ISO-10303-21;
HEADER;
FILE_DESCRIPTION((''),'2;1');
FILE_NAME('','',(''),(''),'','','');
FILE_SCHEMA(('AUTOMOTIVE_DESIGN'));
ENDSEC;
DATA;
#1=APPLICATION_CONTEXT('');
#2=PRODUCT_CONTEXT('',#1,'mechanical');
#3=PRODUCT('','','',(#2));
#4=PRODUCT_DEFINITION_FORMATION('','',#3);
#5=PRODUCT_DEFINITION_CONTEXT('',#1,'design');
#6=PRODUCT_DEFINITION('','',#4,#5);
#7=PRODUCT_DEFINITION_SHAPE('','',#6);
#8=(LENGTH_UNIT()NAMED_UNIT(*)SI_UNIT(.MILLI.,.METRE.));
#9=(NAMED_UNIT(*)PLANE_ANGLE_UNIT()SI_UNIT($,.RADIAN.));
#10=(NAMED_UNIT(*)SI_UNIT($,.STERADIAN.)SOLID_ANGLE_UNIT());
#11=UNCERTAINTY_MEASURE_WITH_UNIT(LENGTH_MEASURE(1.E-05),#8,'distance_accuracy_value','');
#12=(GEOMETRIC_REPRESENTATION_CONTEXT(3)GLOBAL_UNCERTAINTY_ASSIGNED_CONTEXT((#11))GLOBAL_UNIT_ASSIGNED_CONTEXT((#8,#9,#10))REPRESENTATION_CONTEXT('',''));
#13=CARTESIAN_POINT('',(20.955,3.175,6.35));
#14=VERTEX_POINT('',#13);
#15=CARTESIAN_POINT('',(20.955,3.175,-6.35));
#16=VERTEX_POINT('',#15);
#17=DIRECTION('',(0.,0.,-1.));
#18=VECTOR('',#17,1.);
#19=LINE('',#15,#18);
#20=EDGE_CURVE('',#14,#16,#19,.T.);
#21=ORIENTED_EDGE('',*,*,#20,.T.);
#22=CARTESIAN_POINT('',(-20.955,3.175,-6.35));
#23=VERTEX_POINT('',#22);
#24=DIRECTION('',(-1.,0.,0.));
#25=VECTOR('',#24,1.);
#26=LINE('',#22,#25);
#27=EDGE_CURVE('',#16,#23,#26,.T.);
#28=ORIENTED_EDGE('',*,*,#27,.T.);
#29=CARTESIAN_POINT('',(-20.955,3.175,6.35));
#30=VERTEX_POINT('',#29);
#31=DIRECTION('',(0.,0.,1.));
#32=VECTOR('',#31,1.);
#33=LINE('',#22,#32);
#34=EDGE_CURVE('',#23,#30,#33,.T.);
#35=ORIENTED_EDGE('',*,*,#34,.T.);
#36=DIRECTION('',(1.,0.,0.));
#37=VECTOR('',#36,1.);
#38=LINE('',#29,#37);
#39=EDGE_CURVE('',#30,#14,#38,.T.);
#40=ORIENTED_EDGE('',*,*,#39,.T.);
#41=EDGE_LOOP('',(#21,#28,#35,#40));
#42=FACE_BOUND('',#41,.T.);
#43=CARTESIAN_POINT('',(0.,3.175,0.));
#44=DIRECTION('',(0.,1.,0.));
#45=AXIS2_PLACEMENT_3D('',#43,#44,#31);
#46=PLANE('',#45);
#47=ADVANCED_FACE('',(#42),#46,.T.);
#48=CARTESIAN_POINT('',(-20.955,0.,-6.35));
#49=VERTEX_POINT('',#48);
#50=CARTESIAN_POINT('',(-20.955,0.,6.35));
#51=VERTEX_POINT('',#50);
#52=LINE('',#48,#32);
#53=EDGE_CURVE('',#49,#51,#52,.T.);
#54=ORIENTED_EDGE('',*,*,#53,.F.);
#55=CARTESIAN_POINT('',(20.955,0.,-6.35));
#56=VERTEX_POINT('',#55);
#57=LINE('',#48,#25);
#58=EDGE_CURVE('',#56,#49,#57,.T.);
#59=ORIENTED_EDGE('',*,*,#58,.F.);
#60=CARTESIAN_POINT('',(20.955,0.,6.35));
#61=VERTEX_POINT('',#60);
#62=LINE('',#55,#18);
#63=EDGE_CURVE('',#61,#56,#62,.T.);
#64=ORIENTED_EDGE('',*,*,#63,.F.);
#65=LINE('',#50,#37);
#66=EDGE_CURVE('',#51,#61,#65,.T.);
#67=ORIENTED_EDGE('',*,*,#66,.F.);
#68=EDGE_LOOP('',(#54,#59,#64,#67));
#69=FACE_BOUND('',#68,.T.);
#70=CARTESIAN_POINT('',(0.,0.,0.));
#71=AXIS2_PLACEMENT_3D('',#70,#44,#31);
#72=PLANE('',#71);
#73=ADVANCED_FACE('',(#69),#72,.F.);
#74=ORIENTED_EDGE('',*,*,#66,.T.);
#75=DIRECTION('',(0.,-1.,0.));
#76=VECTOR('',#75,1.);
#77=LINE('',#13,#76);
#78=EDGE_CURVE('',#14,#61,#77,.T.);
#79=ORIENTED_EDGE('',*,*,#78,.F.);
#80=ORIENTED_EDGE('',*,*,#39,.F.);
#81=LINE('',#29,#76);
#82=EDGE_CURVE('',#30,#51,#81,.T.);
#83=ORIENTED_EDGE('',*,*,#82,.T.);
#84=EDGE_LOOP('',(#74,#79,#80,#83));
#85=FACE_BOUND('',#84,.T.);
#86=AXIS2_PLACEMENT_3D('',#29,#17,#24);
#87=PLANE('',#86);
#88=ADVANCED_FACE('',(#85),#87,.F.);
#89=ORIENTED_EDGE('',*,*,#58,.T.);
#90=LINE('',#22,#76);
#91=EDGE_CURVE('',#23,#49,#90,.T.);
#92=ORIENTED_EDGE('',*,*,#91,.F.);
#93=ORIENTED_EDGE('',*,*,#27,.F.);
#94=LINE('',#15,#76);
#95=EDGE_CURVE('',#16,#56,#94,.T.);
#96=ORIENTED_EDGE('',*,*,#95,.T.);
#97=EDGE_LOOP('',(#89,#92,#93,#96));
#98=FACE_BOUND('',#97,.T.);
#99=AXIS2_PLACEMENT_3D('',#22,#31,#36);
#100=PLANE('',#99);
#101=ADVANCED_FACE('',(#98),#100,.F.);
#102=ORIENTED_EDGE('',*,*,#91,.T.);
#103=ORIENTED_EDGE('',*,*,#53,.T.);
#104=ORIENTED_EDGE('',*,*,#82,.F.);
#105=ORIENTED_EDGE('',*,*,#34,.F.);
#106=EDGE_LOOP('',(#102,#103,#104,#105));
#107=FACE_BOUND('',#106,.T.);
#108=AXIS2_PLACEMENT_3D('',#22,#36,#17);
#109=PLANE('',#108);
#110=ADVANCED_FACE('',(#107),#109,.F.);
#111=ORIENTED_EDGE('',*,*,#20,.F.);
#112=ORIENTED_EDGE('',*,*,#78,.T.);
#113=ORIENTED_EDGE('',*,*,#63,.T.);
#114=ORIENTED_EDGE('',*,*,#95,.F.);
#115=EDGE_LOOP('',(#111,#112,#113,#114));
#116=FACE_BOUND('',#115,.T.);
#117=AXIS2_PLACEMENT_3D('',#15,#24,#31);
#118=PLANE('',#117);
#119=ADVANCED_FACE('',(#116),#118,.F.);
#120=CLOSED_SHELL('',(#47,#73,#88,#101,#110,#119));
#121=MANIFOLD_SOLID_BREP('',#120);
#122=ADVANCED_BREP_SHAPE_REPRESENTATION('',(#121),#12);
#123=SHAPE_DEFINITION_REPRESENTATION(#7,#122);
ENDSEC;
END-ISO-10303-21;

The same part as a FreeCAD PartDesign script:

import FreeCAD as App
import Part
import Sketcher

V = App.Vector
Q = App.Units.Quantity


def add_polygon(sketch, points):
    """Adds a closed chain of lines whose ends are joined by coincident constraints."""
    first, n = sketch.GeometryCount, len(points)
    for a, b in zip(points, points[1:] + points[:1]):
        sketch.addGeometry(Part.LineSegment(App.Vector(*a, 0), App.Vector(*b, 0)), False)
    for i in range(n):
        sketch.addConstraint(Sketcher.Constraint("Coincident", first + i, 2, first + (i + 1) % n, 1))

doc = App.newDocument("Part")
body = doc.addObject("PartDesign::Body", "Body")

# Sketch on XZ plane
sketch1 = body.newObject("Sketcher::SketchObject", "Sketch")
sketch1.AttachmentSupport = (doc.getObject("XZ_Plane"), [""])
sketch1.MapMode = "FlatFace"
add_polygon(sketch1, [(-21, -6), (-21, 6), (21, 6), (21, -6)])  # lines 0-3
sketch1.addConstraint([
    Sketcher.Constraint("Vertical", 0),
    Sketcher.Constraint("Horizontal", 1),
    Sketcher.Constraint("Vertical", 2),
    Sketcher.Constraint("Horizontal", 3),
    Sketcher.Constraint("Symmetric", 0, 2, 2, 2, -1, 1),
    Sketcher.Constraint("DistanceY", 0, 1, 0, 2, Q("0.5 in")),
    Sketcher.Constraint("DistanceX", 1, 1, 1, 2, Q("1.65 in")),
])
pad1 = body.newObject("PartDesign::Pad", "Pad")
pad1.Profile = sketch1
pad1.Length = Q("0.125 in")
pad1.Reversed = True

doc.recompute()
